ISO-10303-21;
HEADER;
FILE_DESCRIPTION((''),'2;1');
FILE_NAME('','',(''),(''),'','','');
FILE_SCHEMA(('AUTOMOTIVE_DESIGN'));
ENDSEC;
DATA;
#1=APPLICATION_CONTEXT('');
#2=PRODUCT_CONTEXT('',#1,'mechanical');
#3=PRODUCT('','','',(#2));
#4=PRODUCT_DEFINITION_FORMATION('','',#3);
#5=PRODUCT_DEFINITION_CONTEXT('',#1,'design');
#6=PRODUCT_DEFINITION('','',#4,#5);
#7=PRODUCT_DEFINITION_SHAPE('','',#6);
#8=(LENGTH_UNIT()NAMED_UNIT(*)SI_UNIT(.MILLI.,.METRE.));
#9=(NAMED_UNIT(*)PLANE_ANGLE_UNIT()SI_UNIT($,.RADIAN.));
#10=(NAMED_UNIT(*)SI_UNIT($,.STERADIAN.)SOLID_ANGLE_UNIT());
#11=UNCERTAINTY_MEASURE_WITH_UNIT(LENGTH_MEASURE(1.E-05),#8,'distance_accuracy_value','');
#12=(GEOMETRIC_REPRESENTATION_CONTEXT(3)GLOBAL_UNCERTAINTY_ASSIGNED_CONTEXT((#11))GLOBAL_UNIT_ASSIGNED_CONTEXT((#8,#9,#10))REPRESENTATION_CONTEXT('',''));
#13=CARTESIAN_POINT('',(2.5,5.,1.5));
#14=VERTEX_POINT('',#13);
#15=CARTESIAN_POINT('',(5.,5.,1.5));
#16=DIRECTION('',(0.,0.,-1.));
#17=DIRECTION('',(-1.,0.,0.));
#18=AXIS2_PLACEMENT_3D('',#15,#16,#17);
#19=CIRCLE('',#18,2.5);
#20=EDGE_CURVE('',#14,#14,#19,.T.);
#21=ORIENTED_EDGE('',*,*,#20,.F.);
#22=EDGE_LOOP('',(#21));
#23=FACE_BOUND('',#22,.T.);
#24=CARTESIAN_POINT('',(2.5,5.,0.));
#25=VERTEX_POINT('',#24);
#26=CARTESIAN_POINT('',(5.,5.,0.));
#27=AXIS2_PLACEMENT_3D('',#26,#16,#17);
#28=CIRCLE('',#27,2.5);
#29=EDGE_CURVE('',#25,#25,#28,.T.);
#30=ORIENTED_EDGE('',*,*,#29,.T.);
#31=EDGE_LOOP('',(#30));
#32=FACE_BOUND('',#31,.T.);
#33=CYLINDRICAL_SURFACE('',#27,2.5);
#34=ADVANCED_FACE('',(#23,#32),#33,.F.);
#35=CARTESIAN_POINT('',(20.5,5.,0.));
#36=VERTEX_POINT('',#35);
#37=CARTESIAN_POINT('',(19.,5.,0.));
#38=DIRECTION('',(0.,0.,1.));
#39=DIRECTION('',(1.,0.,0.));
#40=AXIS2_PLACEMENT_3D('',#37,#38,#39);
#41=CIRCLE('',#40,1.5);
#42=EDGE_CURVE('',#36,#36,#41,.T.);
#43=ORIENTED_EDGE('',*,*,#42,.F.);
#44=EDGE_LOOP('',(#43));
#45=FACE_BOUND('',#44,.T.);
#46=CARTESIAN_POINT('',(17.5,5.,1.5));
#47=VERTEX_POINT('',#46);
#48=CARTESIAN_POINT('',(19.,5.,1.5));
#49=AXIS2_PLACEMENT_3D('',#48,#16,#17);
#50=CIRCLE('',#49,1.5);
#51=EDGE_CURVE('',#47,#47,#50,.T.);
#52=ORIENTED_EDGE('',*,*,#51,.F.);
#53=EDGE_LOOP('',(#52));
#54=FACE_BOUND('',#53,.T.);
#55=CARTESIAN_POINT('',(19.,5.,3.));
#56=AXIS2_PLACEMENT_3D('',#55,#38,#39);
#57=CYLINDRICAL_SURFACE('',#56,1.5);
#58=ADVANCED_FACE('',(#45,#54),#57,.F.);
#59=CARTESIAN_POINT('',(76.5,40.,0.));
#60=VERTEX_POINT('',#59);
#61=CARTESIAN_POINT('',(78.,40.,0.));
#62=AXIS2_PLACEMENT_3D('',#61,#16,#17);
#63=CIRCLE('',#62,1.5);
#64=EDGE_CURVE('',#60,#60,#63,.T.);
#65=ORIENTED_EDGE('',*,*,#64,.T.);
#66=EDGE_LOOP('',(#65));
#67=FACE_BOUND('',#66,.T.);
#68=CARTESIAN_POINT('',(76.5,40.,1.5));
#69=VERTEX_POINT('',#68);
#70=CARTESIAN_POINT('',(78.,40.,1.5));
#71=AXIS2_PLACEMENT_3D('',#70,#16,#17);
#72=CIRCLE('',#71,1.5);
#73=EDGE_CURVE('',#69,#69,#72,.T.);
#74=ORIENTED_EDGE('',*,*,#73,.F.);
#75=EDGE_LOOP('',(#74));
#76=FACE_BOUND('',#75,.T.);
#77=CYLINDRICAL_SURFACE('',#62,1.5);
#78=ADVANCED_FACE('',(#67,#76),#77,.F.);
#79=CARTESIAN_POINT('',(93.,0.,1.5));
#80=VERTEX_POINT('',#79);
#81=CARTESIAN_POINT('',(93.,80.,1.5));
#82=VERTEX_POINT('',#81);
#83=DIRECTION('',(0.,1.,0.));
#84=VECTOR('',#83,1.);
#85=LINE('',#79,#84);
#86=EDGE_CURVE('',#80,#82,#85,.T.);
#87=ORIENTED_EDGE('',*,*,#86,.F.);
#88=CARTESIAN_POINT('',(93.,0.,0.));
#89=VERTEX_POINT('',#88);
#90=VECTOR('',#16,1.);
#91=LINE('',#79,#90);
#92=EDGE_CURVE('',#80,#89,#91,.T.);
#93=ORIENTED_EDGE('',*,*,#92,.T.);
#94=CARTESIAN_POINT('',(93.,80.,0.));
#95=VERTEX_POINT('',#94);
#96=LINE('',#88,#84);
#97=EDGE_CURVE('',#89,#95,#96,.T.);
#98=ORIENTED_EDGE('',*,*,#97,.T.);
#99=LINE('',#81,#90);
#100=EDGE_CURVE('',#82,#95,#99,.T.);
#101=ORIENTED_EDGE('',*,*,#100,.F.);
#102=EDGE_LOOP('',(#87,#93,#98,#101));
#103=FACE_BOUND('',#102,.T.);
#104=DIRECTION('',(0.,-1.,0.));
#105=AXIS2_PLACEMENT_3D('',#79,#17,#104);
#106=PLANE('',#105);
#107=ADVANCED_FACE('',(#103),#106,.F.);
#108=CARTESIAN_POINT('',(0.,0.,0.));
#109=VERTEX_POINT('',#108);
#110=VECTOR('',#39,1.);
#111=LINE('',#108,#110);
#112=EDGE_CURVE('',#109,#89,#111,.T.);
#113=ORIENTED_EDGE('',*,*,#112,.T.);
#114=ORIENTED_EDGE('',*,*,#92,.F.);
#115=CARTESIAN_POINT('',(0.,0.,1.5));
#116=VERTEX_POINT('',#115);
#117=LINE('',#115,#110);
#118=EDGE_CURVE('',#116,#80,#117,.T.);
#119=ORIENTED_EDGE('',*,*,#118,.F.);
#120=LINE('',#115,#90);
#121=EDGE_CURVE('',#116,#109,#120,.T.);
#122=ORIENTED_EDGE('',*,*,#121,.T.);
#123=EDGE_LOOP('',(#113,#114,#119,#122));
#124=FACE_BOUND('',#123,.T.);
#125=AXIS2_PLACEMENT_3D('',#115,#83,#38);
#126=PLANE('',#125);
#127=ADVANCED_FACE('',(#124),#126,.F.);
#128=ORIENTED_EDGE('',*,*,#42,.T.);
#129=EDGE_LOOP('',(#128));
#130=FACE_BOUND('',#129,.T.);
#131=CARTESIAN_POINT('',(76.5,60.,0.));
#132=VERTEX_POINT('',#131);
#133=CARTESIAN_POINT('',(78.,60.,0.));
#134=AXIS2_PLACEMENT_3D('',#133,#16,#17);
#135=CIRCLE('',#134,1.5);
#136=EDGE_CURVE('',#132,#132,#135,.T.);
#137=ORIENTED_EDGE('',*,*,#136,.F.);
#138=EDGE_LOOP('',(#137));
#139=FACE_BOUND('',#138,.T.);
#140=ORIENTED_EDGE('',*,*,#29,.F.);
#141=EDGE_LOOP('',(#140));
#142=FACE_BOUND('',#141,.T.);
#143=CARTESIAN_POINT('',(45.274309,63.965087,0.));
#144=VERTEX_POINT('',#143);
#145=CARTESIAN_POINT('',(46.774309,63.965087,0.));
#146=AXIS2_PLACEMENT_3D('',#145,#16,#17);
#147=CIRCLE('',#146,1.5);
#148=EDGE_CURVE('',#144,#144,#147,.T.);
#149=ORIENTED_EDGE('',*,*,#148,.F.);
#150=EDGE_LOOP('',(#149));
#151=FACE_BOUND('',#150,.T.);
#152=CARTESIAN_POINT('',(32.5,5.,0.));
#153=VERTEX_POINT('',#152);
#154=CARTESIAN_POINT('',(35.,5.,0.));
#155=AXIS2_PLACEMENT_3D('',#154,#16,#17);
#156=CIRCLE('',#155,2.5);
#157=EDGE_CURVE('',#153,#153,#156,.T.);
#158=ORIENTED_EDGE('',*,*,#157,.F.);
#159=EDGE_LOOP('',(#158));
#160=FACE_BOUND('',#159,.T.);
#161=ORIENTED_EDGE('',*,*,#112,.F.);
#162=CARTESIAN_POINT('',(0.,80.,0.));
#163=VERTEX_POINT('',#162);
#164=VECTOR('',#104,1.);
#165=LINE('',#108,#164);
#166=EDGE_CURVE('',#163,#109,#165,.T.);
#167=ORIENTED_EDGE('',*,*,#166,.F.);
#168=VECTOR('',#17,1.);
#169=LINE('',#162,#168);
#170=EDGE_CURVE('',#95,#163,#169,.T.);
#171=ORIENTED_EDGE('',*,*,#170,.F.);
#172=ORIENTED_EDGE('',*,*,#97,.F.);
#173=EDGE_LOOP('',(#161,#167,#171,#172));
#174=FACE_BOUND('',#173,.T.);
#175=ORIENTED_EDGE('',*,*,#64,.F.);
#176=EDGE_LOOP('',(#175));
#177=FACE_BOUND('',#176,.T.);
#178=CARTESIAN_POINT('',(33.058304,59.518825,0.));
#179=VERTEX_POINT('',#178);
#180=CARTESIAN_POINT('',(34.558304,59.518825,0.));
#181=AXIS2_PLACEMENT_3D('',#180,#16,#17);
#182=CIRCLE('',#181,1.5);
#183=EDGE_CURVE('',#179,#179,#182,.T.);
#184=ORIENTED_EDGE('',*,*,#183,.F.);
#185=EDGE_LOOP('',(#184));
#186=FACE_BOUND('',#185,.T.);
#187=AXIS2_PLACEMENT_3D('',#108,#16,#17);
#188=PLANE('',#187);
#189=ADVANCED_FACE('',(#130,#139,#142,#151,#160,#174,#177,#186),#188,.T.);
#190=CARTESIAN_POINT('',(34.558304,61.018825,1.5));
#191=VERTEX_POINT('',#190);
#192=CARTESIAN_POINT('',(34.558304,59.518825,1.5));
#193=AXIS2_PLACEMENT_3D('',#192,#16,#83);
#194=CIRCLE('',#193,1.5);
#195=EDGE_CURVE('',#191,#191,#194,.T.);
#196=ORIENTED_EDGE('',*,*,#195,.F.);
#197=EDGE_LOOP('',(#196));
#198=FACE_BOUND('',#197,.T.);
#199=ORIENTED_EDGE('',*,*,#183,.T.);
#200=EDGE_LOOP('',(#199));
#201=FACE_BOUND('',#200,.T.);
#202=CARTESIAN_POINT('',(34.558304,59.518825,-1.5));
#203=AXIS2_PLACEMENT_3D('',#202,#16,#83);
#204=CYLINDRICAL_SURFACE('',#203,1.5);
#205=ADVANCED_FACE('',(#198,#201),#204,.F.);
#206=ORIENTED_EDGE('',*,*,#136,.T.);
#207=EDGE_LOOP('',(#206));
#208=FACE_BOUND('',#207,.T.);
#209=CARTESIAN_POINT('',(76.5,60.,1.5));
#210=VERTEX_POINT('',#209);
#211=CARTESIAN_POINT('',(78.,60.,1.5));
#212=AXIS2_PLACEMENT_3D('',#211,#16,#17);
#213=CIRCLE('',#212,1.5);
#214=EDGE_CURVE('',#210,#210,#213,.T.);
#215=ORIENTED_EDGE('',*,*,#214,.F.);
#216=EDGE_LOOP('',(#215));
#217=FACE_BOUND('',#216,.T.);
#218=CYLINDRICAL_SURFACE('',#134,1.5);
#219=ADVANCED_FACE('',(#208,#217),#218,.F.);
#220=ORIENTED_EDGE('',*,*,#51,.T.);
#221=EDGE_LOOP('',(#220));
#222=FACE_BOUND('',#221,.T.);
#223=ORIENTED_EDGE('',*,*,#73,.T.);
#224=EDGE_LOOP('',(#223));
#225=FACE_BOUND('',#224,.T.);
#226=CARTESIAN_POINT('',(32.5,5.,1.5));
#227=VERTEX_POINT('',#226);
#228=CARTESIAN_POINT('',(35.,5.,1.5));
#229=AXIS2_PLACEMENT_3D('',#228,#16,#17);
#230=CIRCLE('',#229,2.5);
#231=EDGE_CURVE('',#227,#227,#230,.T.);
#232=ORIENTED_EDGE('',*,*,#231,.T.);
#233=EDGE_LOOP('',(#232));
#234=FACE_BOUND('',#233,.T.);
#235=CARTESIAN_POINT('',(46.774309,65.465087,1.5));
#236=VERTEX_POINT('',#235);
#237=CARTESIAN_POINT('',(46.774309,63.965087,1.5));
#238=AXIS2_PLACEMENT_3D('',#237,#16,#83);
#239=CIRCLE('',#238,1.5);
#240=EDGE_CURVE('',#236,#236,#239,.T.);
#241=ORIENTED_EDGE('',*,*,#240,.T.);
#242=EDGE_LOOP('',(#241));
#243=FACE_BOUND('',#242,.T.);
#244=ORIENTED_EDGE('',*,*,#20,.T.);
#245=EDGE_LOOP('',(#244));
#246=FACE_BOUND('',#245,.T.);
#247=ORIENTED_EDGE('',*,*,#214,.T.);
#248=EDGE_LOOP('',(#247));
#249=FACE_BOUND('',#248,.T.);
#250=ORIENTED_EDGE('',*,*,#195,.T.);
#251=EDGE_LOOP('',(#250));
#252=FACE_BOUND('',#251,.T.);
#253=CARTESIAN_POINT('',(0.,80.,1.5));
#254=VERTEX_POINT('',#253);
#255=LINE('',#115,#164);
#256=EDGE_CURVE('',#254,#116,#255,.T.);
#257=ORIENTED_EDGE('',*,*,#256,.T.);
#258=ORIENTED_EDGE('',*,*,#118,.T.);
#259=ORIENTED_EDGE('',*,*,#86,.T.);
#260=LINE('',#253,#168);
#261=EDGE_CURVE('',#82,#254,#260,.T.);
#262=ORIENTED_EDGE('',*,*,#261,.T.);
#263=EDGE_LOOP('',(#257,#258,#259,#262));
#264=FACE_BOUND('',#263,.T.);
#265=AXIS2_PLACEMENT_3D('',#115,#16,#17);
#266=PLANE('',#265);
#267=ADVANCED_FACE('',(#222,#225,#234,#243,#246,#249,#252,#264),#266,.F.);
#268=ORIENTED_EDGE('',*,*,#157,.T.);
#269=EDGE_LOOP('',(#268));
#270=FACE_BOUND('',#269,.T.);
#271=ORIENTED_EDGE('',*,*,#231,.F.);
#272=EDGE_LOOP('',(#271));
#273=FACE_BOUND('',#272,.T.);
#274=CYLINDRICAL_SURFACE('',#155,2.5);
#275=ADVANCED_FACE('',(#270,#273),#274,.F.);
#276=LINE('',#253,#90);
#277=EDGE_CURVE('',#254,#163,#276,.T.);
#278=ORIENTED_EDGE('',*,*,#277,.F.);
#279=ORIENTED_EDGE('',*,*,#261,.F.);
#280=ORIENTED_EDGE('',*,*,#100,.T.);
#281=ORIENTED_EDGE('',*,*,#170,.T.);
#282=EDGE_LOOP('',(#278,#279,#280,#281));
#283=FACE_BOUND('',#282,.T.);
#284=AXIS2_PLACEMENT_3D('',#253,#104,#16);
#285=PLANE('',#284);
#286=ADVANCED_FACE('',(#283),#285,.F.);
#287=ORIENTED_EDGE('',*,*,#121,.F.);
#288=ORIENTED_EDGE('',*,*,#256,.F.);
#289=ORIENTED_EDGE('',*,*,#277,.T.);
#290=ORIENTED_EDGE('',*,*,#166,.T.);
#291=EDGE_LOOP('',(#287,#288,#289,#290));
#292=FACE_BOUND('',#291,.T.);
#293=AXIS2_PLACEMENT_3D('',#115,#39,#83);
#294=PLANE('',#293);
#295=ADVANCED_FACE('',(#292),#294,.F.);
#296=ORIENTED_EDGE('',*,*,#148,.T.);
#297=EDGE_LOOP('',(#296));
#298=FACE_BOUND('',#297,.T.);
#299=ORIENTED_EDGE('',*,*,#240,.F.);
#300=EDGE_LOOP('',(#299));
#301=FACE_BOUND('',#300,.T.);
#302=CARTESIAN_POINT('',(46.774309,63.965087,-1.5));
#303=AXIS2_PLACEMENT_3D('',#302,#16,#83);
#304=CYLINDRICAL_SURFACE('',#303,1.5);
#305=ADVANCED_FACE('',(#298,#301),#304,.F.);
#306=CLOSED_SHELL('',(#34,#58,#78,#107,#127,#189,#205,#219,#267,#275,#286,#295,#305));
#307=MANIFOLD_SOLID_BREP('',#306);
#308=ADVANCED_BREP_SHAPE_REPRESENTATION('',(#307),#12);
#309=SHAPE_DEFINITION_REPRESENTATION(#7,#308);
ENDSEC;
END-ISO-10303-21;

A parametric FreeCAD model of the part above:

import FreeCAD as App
import Part
import Sketcher

V = App.Vector
Q = App.Units.Quantity


def add_polygon(sketch, points):
    """Adds a closed chain of lines whose ends are joined by coincident constraints."""
    first, n = sketch.GeometryCount, len(points)
    for a, b in zip(points, points[1:] + points[:1]):
        sketch.addGeometry(Part.LineSegment(App.Vector(*a, 0), App.Vector(*b, 0)), False)
    for i in range(n):
        sketch.addConstraint(Sketcher.Constraint("Coincident", first + i, 2, first + (i + 1) % n, 1))

doc = App.newDocument("Part")
params = doc.addObject("Spreadsheet::Sheet", "Params")
for row, (alias, value) in enumerate([
    ("sketch1_width", "93 mm"),
    ("sketch1_height", "80 mm"),
    ("pad1_length", "1.5 mm"),
    ("sketch2_diameter", "5 mm"),
    ("hole_diameter", "5 mm"),
    ("hole_depth", "6 mm"),
    ("sketch3_diameter", "3 mm"),
    ("hole2_diameter", "3 mm"),
    ("sketch4_diameter", "3 mm"),
    ("hole3_diameter", "3 mm"),
    ("hole3_depth", "2.999 mm"),
    ("sketch5_diameter", "3 mm"),
    ("hole4_diameter", "3 mm"),
], start=1):
    params.set(f"A{row}", alias)
    params.set(f"B{row}", "=" + value)
    params.setAlias(f"B{row}", alias)

body = doc.addObject("PartDesign::Body", "Body")

# Sketch on XY plane
sketch1 = body.newObject("Sketcher::SketchObject", "Sketch")
sketch1.AttachmentSupport = (doc.getObject("XY_Plane"), [""])
sketch1.MapMode = "FlatFace"
add_polygon(sketch1, [(0, 80), (0, 0), (93, 0), (93, 80)])  # lines 0-3
sketch1.addConstraint([
    Sketcher.Constraint("Vertical", 0),
    Sketcher.Constraint("Horizontal", 1),
    Sketcher.Constraint("Vertical", 2),
    Sketcher.Constraint("Horizontal", 3),
    Sketcher.Constraint("Coincident", 0, 2, -1, 1),
    Sketcher.Constraint("DistanceX", 1, 1, 1, 2, Q("93 mm")),
    Sketcher.Constraint("DistanceY", 0, 2, 0, 1, Q("80 mm")),
])
sketch1.setExpression("Constraints[9]", "Params.sketch1_width")
sketch1.setExpression("Constraints[10]", "Params.sketch1_height")
pad1 = body.newObject("PartDesign::Pad", "Pad")
pad1.Profile = sketch1
pad1.setExpression("Length", "Params.pad1_length")

# Sketch on XY plane
sketch2 = body.newObject("Sketcher::SketchObject", "Sketch001")
sketch2.AttachmentSupport = (doc.getObject("XY_Plane"), [""])
sketch2.MapMode = "FlatFace"
sketch2.addGeometry([
    Part.Circle(V(35, 5, 0), V(0, 0, 1), 2.5),
    Part.Circle(V(5, 5, 0), V(0, 0, 1), 2.5),
], False)
sketch2.addConstraint([
    Sketcher.Constraint("Equal", 0, 1),
    Sketcher.Constraint("Horizontal", 0, 3, 1, 3),
    Sketcher.Constraint("Diameter", 0, Q("5 mm")),
    Sketcher.Constraint("DistanceX", -1, 1, 0, 3, Q("35 mm")),
    Sketcher.Constraint("DistanceY", -1, 1, 0, 3, Q("5 mm")),
    Sketcher.Constraint("DistanceX", -1, 1, 1, 3, Q("5 mm")),
])
sketch2.setExpression("Constraints[2]", "Params.sketch2_diameter")
doc.recompute()
hole = body.newObject("PartDesign::Hole", "Hole")
hole.Profile = sketch2
hole.ThreadType = "None"
hole.setExpression("Diameter", "Params.hole_diameter")
hole.DepthType = "Dimension"
hole.setExpression("Depth", "Params.hole_depth")
hole.DrillPoint = "Angled"
hole.DrillPointAngle = 118
hole.Reversed = True

# Sketch on XY plane
sketch3 = body.newObject("Sketcher::SketchObject", "Sketch002")
sketch3.AttachmentSupport = (doc.getObject("XY_Plane"), [""])
sketch3.MapMode = "FlatFace"
sketch3.AttachmentOffset = App.Placement(V(0, 0, -1.5), App.Rotation())
sketch3.addGeometry([
    Part.Circle(V(46.8, 64, 0), V(0, 0, 1), 1.5),
    Part.Circle(V(34.6, 59.5, 0), V(0, 0, 1), 1.5),
], False)
sketch3.addConstraint([
    Sketcher.Constraint("Equal", 0, 1),
    Sketcher.Constraint("Diameter", 0, Q("3 mm")),
    Sketcher.Constraint("DistanceX", -1, 1, 0, 3, Q("46.774309 mm")),
    Sketcher.Constraint("DistanceY", 1, 3, 0, 3, Q("4.446262 mm")),
    Sketcher.Constraint("DistanceY", -1, 1, 0, 3, Q("63.965087 mm")),
    Sketcher.Constraint("DistanceX", -1, 1, 1, 3, Q("34.558304 mm")),
])
sketch3.setExpression("Constraints[1]", "Params.sketch3_diameter")
doc.recompute()
hole2 = body.newObject("PartDesign::Hole", "Hole001")
hole2.Profile = sketch3
hole2.ThreadType = "None"
hole2.setExpression("Diameter", "Params.hole2_diameter")
hole2.DepthType = "ThroughAll"
hole2.Reversed = True

# Sketch on XY plane
sketch4 = body.newObject("Sketcher::SketchObject", "Sketch003")
sketch4.AttachmentSupport = (doc.getObject("XY_Plane"), [""])
sketch4.MapMode = "FlatFace"
sketch4.addGeometry([
    Part.Circle(V(78, 60, 0), V(0, 0, 1), 1.5),
    Part.Circle(V(78, 40, 0), V(0, 0, 1), 1.5),
], False)
sketch4.addConstraint([
    Sketcher.Constraint("Equal", 0, 1),
    Sketcher.Constraint("Vertical", 0, 3, 1, 3),
    Sketcher.Constraint("Diameter", 0, Q("3 mm")),
    Sketcher.Constraint("DistanceX", -1, 1, 0, 3, Q("78 mm")),
    Sketcher.Constraint("DistanceY", -1, 1, 0, 3, Q("60 mm")),
    Sketcher.Constraint("DistanceY", -1, 1, 1, 3, Q("40 mm")),
])
sketch4.setExpression("Constraints[2]", "Params.sketch4_diameter")
doc.recompute()
hole3 = body.newObject("PartDesign::Hole", "Hole002")
hole3.Profile = sketch4
hole3.ThreadType = "None"
hole3.setExpression("Diameter", "Params.hole3_diameter")
hole3.DepthType = "Dimension"
hole3.setExpression("Depth", "Params.hole3_depth")
hole3.DrillPoint = "Angled"
hole3.DrillPointAngle = 118
hole3.Reversed = True

# Sketch on XY plane
sketch5 = body.newObject("Sketcher::SketchObject", "Sketch004")
sketch5.AttachmentSupport = (doc.getObject("XY_Plane"), [""])
sketch5.MapMode = "FlatFace"
sketch5.AttachmentOffset = App.Placement(V(0, 0, 3), App.Rotation())
sketch5.addGeometry(Part.Circle(V(19, 5, 0), V(0, 0, 1), 1.5), False)
sketch5.addConstraint([
    Sketcher.Constraint("Diameter", 0, Q("3 mm")),
    Sketcher.Constraint("DistanceX", -1, 1, 0, 3, Q("19 mm")),
    Sketcher.Constraint("DistanceY", -1, 1, 0, 3, Q("5 mm")),
])
sketch5.setExpression("Constraints[0]", "Params.sketch5_diameter")
doc.recompute()
hole4 = body.newObject("PartDesign::Hole", "Hole003")
hole4.Profile = sketch5
hole4.ThreadType = "None"
hole4.setExpression("Diameter", "Params.hole4_diameter")
hole4.DepthType = "ThroughAll"

doc.recompute()
